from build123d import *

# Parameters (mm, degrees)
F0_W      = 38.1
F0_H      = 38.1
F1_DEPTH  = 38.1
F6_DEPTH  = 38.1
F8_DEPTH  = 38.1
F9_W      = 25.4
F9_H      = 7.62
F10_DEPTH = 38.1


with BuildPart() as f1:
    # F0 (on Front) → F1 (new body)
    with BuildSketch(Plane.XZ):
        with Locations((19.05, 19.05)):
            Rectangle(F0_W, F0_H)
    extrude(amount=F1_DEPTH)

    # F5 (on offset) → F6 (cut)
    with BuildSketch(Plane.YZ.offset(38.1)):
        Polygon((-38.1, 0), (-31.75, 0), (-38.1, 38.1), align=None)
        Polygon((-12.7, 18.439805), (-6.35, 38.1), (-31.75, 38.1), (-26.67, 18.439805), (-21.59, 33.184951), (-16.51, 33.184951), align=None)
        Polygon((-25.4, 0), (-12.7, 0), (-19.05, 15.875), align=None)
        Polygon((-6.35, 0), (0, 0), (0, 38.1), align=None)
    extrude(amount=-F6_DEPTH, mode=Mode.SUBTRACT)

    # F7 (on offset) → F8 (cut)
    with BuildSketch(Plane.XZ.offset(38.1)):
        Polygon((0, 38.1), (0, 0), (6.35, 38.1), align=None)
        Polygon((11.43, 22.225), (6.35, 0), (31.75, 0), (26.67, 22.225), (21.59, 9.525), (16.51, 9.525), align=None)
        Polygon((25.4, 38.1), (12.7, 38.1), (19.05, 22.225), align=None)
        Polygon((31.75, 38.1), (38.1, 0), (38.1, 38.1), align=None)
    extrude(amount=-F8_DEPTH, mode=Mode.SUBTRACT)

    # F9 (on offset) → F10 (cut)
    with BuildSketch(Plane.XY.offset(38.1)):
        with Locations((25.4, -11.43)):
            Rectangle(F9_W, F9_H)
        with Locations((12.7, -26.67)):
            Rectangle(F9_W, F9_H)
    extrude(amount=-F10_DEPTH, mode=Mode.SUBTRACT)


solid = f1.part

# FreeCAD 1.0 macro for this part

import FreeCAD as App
import Part
import Sketcher
Q = App.Units.Quantity

doc = App.newDocument("Part")
body = doc.addObject("PartDesign::Body", "Body")

sketch1 = body.newObject("Sketcher::SketchObject", "Sketch")
sketch1.AttachmentSupport = (doc.getObject("XZ_Plane"), [""])
sketch1.MapMode = "FlatFace"
sketch1.addGeometry(Part.LineSegment(App.Vector(0, 38.1, 0), App.Vector(0, 0, 0)), False)
sketch1.addGeometry(Part.LineSegment(App.Vector(0, 0, 0), App.Vector(38.1, 0, 0)), False)
sketch1.addGeometry(Part.LineSegment(App.Vector(38.1, 0, 0), App.Vector(38.1, 38.1, 0)), False)
sketch1.addGeometry(Part.LineSegment(App.Vector(38.1, 38.1, 0), App.Vector(0, 38.1, 0)), False)
sketch1.addConstraint(Sketcher.Constraint("Coincident", 0, 2, 1, 1))
sketch1.addConstraint(Sketcher.Constraint("Coincident", 1, 2, 2, 1))
sketch1.addConstraint(Sketcher.Constraint("Coincident", 2, 2, 3, 1))
sketch1.addConstraint(Sketcher.Constraint("Coincident", 3, 2, 0, 1))
sketch1.addConstraint(Sketcher.Constraint("Vertical", 0))
sketch1.addConstraint(Sketcher.Constraint("Horizontal", 1))
sketch1.addConstraint(Sketcher.Constraint("Vertical", 2))
sketch1.addConstraint(Sketcher.Constraint("Horizontal", 3))
sketch1.addConstraint(Sketcher.Constraint("Coincident", 0, 2, -1, 1))
sketch1.addConstraint(Sketcher.Constraint("Equal", 3, 0))
sketch1.addConstraint(Sketcher.Constraint("DistanceX", 1, 1, 1, 2, Q("1.5 in")))
pad1 = body.newObject("PartDesign::Pad", "Pad")
pad1.Profile = sketch1
pad1.Length = Q("1.5 in")

sketch2 = body.newObject("Sketcher::SketchObject", "Sketch001")
sketch2.AttachmentSupport = (doc.getObject("YZ_Plane"), [""])
sketch2.MapMode = "FlatFace"
sketch2.AttachmentOffset = App.Placement(App.Vector(0, 0, 1.5 * 25.4), App.Rotation())
sketch2.addGeometry(Part.LineSegment(App.Vector(-38.1, 0, 0), App.Vector(-31.75, 0, 0)), False)
sketch2.addGeometry(Part.LineSegment(App.Vector(-31.75, 0, 0), App.Vector(-38.1, 38.1, 0)), False)
sketch2.addGeometry(Part.LineSegment(App.Vector(-38.1, 38.1, 0), App.Vector(-38.1, 0, 0)), False)
sketch2.addGeometry(Part.LineSegment(App.Vector(-12.7, 18.439805, 0), App.Vector(-6.35, 38.1, 0)), False)
sketch2.addGeometry(Part.LineSegment(App.Vector(-6.35, 38.1, 0), App.Vector(-31.75, 38.1, 0)), False)
sketch2.addGeometry(Part.LineSegment(App.Vector(-31.75, 38.1, 0), App.Vector(-26.67, 18.439805, 0)), False)
sketch2.addGeometry(Part.LineSegment(App.Vector(-26.67, 18.439805, 0), App.Vector(-21.59, 33.184951, 0)), False)
sketch2.addGeometry(Part.LineSegment(App.Vector(-21.59, 33.184951, 0), App.Vector(-16.51, 33.184951, 0)), False)
sketch2.addGeometry(Part.LineSegment(App.Vector(-16.51, 33.184951, 0), App.Vector(-12.7, 18.439805, 0)), False)
sketch2.addGeometry(Part.LineSegment(App.Vector(-25.4, 0, 0), App.Vector(-12.7, 0, 0)), False)
sketch2.addGeometry(Part.LineSegment(App.Vector(-12.7, 0, 0), App.Vector(-19.05, 15.875, 0)), False)
sketch2.addGeometry(Part.LineSegment(App.Vector(-19.05, 15.875, 0), App.Vector(-25.4, 0, 0)), False)
sketch2.addGeometry(Part.LineSegment(App.Vector(-6.35, 0, 0), App.Vector(0, 0, 0)), False)
sketch2.addGeometry(Part.LineSegment(App.Vector(0, 0, 0), App.Vector(0, 38.1, 0)), False)
sketch2.addGeometry(Part.LineSegment(App.Vector(0, 38.1, 0), App.Vector(-6.35, 0, 0)), False)
sketch2.addConstraint(Sketcher.Constraint("Coincident", 0, 2, 1, 1))
sketch2.addConstraint(Sketcher.Constraint("Coincident", 1, 2, 2, 1))
sketch2.addConstraint(Sketcher.Constraint("Coincident", 2, 2, 0, 1))
sketch2.addConstraint(Sketcher.Constraint("Coincident", 3, 2, 4, 1))
sketch2.addConstraint(Sketcher.Constraint("Coincident", 4, 2, 5, 1))
sketch2.addConstraint(Sketcher.Constraint("Coincident", 5, 2, 6, 1))
sketch2.addConstraint(Sketcher.Constraint("Coincident", 6, 2, 7, 1))
sketch2.addConstraint(Sketcher.Constraint("Coincident", 7, 2, 8, 1))
sketch2.addConstraint(Sketcher.Constraint("Coincident", 8, 2, 3, 1))
sketch2.addConstraint(Sketcher.Constraint("Coincident", 9, 2, 10, 1))
sketch2.addConstraint(Sketcher.Constraint("Coincident", 10, 2, 11, 1))
sketch2.addConstraint(Sketcher.Constraint("Coincident", 11, 2, 9, 1))
sketch2.addConstraint(Sketcher.Constraint("Coincident", 12, 2, 13, 1))
sketch2.addConstraint(Sketcher.Constraint("Coincident", 13, 2, 14, 1))
sketch2.addConstraint(Sketcher.Constraint("Coincident", 14, 2, 12, 1))
sketch2.addConstraint(Sketcher.Constraint("Horizontal", 0))
sketch2.addConstraint(Sketcher.Constraint("Vertical", 2))
sketch2.addConstraint(Sketcher.Constraint("Horizontal", 4))
sketch2.addConstraint(Sketcher.Constraint("Horizontal", 7))
sketch2.addConstraint(Sketcher.Constraint("Horizontal", 9))
sketch2.addConstraint(Sketcher.Constraint("Horizontal", 12))
sketch2.addConstraint(Sketcher.Constraint("Vertical", 13))
sketch2.addConstraint(Sketcher.Constraint("Coincident", 12, 2, -1, 1))
sketch2.addConstraint(Sketcher.Constraint("PointOnObject", 0, 2, -1))
sketch2.addConstraint(Sketcher.Constraint("PointOnObject", 9, 2, -1))
sketch2.addConstraint(Sketcher.Constraint("Parallel", 5, 8))
sketch2.addConstraint(Sketcher.Constraint("Horizontal", 1, 2, 3, 2))
sketch2.addConstraint(Sketcher.Constraint("Horizontal", 5, 2, 8, 2))
sketch2.addConstraint(Sketcher.Constraint("Horizontal", 4, 2, 13, 2))
sketch2.addConstraint(Sketcher.Constraint("Vertical", 0, 2, 4, 2))
sketch2.addConstraint(Sketcher.Constraint("Vertical", 8, 2, 9, 2))
sketch2.addConstraint(Sketcher.Constraint("Vertical", 3, 2, 14, 2))
sketch2.addConstraint(Sketcher.Constraint("Equal", 0, 12))
sketch2.addConstraint(Sketcher.Constraint("Equal", 10, 11))
sketch2.addConstraint(Sketcher.Constraint("DistanceX", 4, 2, 4, 1, Q("1 in")))
sketch2.addConstraint(Sketcher.Constraint("DistanceX", 7, 1, 7, 2, Q("0.2 in")))
sketch2.addConstraint(Sketcher.Constraint("DistanceX", 9, 1, 9, 2, Q("0.5 in")))
sketch2.addConstraint(Sketcher.Constraint("DistanceY", 2, 2, 2, 1, Q("1.5 in")))
sketch2.addConstraint(Sketcher.Constraint("DistanceX", 11, 2, -1, 1, Q("1 in")))
sketch2.addConstraint(Sketcher.Constraint("DistanceX", 2, 2, 9, 2, Q("1 in")))
sketch2.addConstraint(Sketcher.Constraint("DistanceX", 0, 2, 5, 2, Q("0.2 in")))
sketch2.addConstraint(Sketcher.Constraint("DistanceX", 4, 2, 6, 2, Q("0.4 in")))
sketch2.addConstraint(Sketcher.Constraint("DistanceY", -1, 1, 10, 2, Q("0.625 in")))
sketch2.addConstraint(Sketcher.Constraint("DistanceY", -1, 1, 6, 2, 33.184951))
pocket1 = body.newObject("PartDesign::Pocket", "Pocket")
pocket1.Profile = sketch2
pocket1.Length = Q("1.5 in")

sketch3 = body.newObject("Sketcher::SketchObject", "Sketch002")
sketch3.AttachmentSupport = (doc.getObject("XZ_Plane"), [""])
sketch3.MapMode = "FlatFace"
sketch3.AttachmentOffset = App.Placement(App.Vector(0, 0, 1.5 * 25.4), App.Rotation())
sketch3.addGeometry(Part.LineSegment(App.Vector(0, 38.1, 0), App.Vector(0, 0, 0)), False)
sketch3.addGeometry(Part.LineSegment(App.Vector(0, 0, 0), App.Vector(6.35, 38.1, 0)), False)
sketch3.addGeometry(Part.LineSegment(App.Vector(6.35, 38.1, 0), App.Vector(0, 38.1, 0)), False)
sketch3.addGeometry(Part.LineSegment(App.Vector(11.43, 22.225, 0), App.Vector(6.35, 0, 0)), False)
sketch3.addGeometry(Part.LineSegment(App.Vector(6.35, 0, 0), App.Vector(31.75, 0, 0)), False)
sketch3.addGeometry(Part.LineSegment(App.Vector(31.75, 0, 0), App.Vector(26.67, 22.225, 0)), False)
sketch3.addGeometry(Part.LineSegment(App.Vector(26.67, 22.225, 0), App.Vector(21.59, 9.525, 0)), False)
sketch3.addGeometry(Part.LineSegment(App.Vector(21.59, 9.525, 0), App.Vector(16.51, 9.525, 0)), False)
sketch3.addGeometry(Part.LineSegment(App.Vector(16.51, 9.525, 0), App.Vector(11.43, 22.225, 0)), False)
sketch3.addGeometry(Part.LineSegment(App.Vector(25.4, 38.1, 0), App.Vector(12.7, 38.1, 0)), False)
sketch3.addGeometry(Part.LineSegment(App.Vector(12.7, 38.1, 0), App.Vector(19.05, 22.225, 0)), False)
sketch3.addGeometry(Part.LineSegment(App.Vector(19.05, 22.225, 0), App.Vector(25.4, 38.1, 0)), False)
sketch3.addGeometry(Part.LineSegment(App.Vector(31.75, 38.1, 0), App.Vector(38.1, 0, 0)), False)
sketch3.addGeometry(Part.LineSegment(App.Vector(38.1, 0, 0), App.Vector(38.1, 38.1, 0)), False)
sketch3.addGeometry(Part.LineSegment(App.Vector(38.1, 38.1, 0), App.Vector(31.75, 38.1, 0)), False)
sketch3.addConstraint(Sketcher.Constraint("Coincident", 0, 2, 1, 1))
sketch3.addConstraint(Sketcher.Constraint("Coincident", 1, 2, 2, 1))
sketch3.addConstraint(Sketcher.Constraint("Coincident", 2, 2, 0, 1))
sketch3.addConstraint(Sketcher.Constraint("Coincident", 3, 2, 4, 1))
sketch3.addConstraint(Sketcher.Constraint("Coincident", 4, 2, 5, 1))
sketch3.addConstraint(Sketcher.Constraint("Coincident", 5, 2, 6, 1))
sketch3.addConstraint(Sketcher.Constraint("Coincident", 6, 2, 7, 1))
sketch3.addConstraint(Sketcher.Constraint("Coincident", 7, 2, 8, 1))
sketch3.addConstraint(Sketcher.Constraint("Coincident", 8, 2, 3, 1))
sketch3.addConstraint(Sketcher.Constraint("Coincident", 9, 2, 10, 1))
sketch3.addConstraint(Sketcher.Constraint("Coincident", 10, 2, 11, 1))
sketch3.addConstraint(Sketcher.Constraint("Coincident", 11, 2, 9, 1))
sketch3.addConstraint(Sketcher.Constraint("Coincident", 12, 2, 13, 1))
sketch3.addConstraint(Sketcher.Constraint("Coincident", 13, 2, 14, 1))
sketch3.addConstraint(Sketcher.Constraint("Coincident", 14, 2, 12, 1))
sketch3.addConstraint(Sketcher.Constraint("Vertical", 0))
sketch3.addConstraint(Sketcher.Constraint("Horizontal", 2))
sketch3.addConstraint(Sketcher.Constraint("Horizontal", 4))
sketch3.addConstraint(Sketcher.Constraint("Horizontal", 7))
sketch3.addConstraint(Sketcher.Constraint("Horizontal", 9))
sketch3.addConstraint(Sketcher.Constraint("Vertical", 13))
sketch3.addConstraint(Sketcher.Constraint("Horizontal", 14))
sketch3.addConstraint(Sketcher.Constraint("Coincident", 0, 2, -1, 1))
sketch3.addConstraint(Sketcher.Constraint("PointOnObject", 3, 2, -1))
sketch3.addConstraint(Sketcher.Constraint("PointOnObject", 12, 2, -1))
sketch3.addConstraint(Sketcher.Constraint("Parallel", 8, 10))
sketch3.addConstraint(Sketcher.Constraint("Parallel", 6, 11))
sketch3.addConstraint(Sketcher.Constraint("Horizontal", 5, 2, 8, 2))
sketch3.addConstraint(Sketcher.Constraint("Horizontal", 2, 2, 9, 2))
sketch3.addConstraint(Sketcher.Constraint("Horizontal", 8, 2, 10, 2))
sketch3.addConstraint(Sketcher.Constraint("Horizontal", 11, 2, 13, 2))
sketch3.addConstraint(Sketcher.Constraint("Vertical", 1, 2, 3, 2))
sketch3.addConstraint(Sketcher.Constraint("Vertical", 4, 2, 14, 2))
sketch3.addConstraint(Sketcher.Constraint("Equal", 2, 14))
sketch3.addConstraint(Sketcher.Constraint("Equal", 3, 5))
sketch3.addConstraint(Sketcher.Constraint("Equal", 6, 8))
sketch3.addConstraint(Sketcher.Constraint("DistanceX", 4, 1, 4, 2, Q("1 in")))
sketch3.addConstraint(Sketcher.Constraint("DistanceX", 7, 2, 7, 1, Q("0.2 in")))
sketch3.addConstraint(Sketcher.Constraint("DistanceX", 9, 2, 9, 1, Q("0.5 in")))
sketch3.addConstraint(Sketcher.Constraint("DistanceY", 0, 2, 0, 1, Q("1.5 in")))
sketch3.addConstraint(Sketcher.Constraint("DistanceX", -1, 1, 11, 2, Q("1 in")))
sketch3.addConstraint(Sketcher.Constraint("DistanceX", 9, 2, 13, 2, Q("1 in")))
sketch3.addConstraint(Sketcher.Constraint("DistanceX", 5, 2, 4, 2, Q("0.2 in")))
sketch3.addConstraint(Sketcher.Constraint("DistanceY", 6, 2, 5, 2, Q("0.5 in")))
pocket2 = body.newObject("PartDesign::Pocket", "Pocket001")
pocket2.Profile = sketch3
pocket2.Length = Q("1.5 in")

sketch4 = body.newObject("Sketcher::SketchObject", "Sketch003")
sketch4.AttachmentSupport = (doc.getObject("XY_Plane"), [""])
sketch4.MapMode = "FlatFace"
sketch4.AttachmentOffset = App.Placement(App.Vector(0, 0, 1.5 * 25.4), App.Rotation())
sketch4.addGeometry(Part.LineSegment(App.Vector(12.7, -7.62, 0), App.Vector(12.7, -15.24, 0)), False)
sketch4.addGeometry(Part.LineSegment(App.Vector(12.7, -15.24, 0), App.Vector(38.1, -15.24, 0)), False)
sketch4.addGeometry(Part.LineSegment(App.Vector(38.1, -15.24, 0), App.Vector(38.1, -7.62, 0)), False)
sketch4.addGeometry(Part.LineSegment(App.Vector(38.1, -7.62, 0), App.Vector(12.7, -7.62, 0)), False)
sketch4.addGeometry(Part.LineSegment(App.Vector(0, -22.86, 0), App.Vector(0, -30.48, 0)), False)
sketch4.addGeometry(Part.LineSegment(App.Vector(0, -30.48, 0), App.Vector(25.4, -30.48, 0)), False)
sketch4.addGeometry(Part.LineSegment(App.Vector(25.4, -30.48, 0), App.Vector(25.4, -22.86, 0)), False)
sketch4.addGeometry(Part.LineSegment(App.Vector(25.4, -22.86, 0), App.Vector(0, -22.86, 0)), False)
sketch4.addConstraint(Sketcher.Constraint("Coincident", 0, 2, 1, 1))
sketch4.addConstraint(Sketcher.Constraint("Coincident", 1, 2, 2, 1))
sketch4.addConstraint(Sketcher.Constraint("Coincident", 2, 2, 3, 1))
sketch4.addConstraint(Sketcher.Constraint("Coincident", 3, 2, 0, 1))
sketch4.addConstraint(Sketcher.Constraint("Coincident", 4, 2, 5, 1))
sketch4.addConstraint(Sketcher.Constraint("Coincident", 5, 2, 6, 1))
sketch4.addConstraint(Sketcher.Constraint("Coincident", 6, 2, 7, 1))
sketch4.addConstraint(Sketcher.Constraint("Coincident", 7, 2, 4, 1))
sketch4.addConstraint(Sketcher.Constraint("Vertical", 0))
sketch4.addConstraint(Sketcher.Constraint("Horizontal", 1))
sketch4.addConstraint(Sketcher.Constraint("Vertical", 2))
sketch4.addConstraint(Sketcher.Constraint("Horizontal", 3))
sketch4.addConstraint(Sketcher.Constraint("Vertical", 4))
sketch4.addConstraint(Sketcher.Constraint("Horizontal", 5))
sketch4.addConstraint(Sketcher.Constraint("Vertical", 6))
sketch4.addConstraint(Sketcher.Constraint("Horizontal", 7))
sketch4.addConstraint(Sketcher.Constraint("PointOnObject", 4, 2, -2))
sketch4.addConstraint(Sketcher.Constraint("Equal", 3, 5))
sketch4.addConstraint(Sketcher.Constraint("Equal", 2, 4))
sketch4.addConstraint(Sketcher.Constraint("DistanceX", 1, 1, 1, 2, Q("1 in")))
sketch4.addConstraint(Sketcher.Constraint("DistanceY", 0, 2, 0, 1, Q("0.3 in")))
sketch4.addConstraint(Sketcher.Constraint("DistanceX", -1, 1, 0, 2, Q("0.5 in")))
sketch4.addConstraint(Sketcher.Constraint("DistanceY", 0, 2, -1, 1, Q("0.6 in")))
sketch4.addConstraint(Sketcher.Constraint("DistanceY", 4, 2, -1, 1, Q("1.2 in")))
pocket3 = body.newObject("PartDesign::Pocket", "Pocket002")
pocket3.Profile = sketch4
pocket3.Length = Q("1.5 in")

doc.recompute()
